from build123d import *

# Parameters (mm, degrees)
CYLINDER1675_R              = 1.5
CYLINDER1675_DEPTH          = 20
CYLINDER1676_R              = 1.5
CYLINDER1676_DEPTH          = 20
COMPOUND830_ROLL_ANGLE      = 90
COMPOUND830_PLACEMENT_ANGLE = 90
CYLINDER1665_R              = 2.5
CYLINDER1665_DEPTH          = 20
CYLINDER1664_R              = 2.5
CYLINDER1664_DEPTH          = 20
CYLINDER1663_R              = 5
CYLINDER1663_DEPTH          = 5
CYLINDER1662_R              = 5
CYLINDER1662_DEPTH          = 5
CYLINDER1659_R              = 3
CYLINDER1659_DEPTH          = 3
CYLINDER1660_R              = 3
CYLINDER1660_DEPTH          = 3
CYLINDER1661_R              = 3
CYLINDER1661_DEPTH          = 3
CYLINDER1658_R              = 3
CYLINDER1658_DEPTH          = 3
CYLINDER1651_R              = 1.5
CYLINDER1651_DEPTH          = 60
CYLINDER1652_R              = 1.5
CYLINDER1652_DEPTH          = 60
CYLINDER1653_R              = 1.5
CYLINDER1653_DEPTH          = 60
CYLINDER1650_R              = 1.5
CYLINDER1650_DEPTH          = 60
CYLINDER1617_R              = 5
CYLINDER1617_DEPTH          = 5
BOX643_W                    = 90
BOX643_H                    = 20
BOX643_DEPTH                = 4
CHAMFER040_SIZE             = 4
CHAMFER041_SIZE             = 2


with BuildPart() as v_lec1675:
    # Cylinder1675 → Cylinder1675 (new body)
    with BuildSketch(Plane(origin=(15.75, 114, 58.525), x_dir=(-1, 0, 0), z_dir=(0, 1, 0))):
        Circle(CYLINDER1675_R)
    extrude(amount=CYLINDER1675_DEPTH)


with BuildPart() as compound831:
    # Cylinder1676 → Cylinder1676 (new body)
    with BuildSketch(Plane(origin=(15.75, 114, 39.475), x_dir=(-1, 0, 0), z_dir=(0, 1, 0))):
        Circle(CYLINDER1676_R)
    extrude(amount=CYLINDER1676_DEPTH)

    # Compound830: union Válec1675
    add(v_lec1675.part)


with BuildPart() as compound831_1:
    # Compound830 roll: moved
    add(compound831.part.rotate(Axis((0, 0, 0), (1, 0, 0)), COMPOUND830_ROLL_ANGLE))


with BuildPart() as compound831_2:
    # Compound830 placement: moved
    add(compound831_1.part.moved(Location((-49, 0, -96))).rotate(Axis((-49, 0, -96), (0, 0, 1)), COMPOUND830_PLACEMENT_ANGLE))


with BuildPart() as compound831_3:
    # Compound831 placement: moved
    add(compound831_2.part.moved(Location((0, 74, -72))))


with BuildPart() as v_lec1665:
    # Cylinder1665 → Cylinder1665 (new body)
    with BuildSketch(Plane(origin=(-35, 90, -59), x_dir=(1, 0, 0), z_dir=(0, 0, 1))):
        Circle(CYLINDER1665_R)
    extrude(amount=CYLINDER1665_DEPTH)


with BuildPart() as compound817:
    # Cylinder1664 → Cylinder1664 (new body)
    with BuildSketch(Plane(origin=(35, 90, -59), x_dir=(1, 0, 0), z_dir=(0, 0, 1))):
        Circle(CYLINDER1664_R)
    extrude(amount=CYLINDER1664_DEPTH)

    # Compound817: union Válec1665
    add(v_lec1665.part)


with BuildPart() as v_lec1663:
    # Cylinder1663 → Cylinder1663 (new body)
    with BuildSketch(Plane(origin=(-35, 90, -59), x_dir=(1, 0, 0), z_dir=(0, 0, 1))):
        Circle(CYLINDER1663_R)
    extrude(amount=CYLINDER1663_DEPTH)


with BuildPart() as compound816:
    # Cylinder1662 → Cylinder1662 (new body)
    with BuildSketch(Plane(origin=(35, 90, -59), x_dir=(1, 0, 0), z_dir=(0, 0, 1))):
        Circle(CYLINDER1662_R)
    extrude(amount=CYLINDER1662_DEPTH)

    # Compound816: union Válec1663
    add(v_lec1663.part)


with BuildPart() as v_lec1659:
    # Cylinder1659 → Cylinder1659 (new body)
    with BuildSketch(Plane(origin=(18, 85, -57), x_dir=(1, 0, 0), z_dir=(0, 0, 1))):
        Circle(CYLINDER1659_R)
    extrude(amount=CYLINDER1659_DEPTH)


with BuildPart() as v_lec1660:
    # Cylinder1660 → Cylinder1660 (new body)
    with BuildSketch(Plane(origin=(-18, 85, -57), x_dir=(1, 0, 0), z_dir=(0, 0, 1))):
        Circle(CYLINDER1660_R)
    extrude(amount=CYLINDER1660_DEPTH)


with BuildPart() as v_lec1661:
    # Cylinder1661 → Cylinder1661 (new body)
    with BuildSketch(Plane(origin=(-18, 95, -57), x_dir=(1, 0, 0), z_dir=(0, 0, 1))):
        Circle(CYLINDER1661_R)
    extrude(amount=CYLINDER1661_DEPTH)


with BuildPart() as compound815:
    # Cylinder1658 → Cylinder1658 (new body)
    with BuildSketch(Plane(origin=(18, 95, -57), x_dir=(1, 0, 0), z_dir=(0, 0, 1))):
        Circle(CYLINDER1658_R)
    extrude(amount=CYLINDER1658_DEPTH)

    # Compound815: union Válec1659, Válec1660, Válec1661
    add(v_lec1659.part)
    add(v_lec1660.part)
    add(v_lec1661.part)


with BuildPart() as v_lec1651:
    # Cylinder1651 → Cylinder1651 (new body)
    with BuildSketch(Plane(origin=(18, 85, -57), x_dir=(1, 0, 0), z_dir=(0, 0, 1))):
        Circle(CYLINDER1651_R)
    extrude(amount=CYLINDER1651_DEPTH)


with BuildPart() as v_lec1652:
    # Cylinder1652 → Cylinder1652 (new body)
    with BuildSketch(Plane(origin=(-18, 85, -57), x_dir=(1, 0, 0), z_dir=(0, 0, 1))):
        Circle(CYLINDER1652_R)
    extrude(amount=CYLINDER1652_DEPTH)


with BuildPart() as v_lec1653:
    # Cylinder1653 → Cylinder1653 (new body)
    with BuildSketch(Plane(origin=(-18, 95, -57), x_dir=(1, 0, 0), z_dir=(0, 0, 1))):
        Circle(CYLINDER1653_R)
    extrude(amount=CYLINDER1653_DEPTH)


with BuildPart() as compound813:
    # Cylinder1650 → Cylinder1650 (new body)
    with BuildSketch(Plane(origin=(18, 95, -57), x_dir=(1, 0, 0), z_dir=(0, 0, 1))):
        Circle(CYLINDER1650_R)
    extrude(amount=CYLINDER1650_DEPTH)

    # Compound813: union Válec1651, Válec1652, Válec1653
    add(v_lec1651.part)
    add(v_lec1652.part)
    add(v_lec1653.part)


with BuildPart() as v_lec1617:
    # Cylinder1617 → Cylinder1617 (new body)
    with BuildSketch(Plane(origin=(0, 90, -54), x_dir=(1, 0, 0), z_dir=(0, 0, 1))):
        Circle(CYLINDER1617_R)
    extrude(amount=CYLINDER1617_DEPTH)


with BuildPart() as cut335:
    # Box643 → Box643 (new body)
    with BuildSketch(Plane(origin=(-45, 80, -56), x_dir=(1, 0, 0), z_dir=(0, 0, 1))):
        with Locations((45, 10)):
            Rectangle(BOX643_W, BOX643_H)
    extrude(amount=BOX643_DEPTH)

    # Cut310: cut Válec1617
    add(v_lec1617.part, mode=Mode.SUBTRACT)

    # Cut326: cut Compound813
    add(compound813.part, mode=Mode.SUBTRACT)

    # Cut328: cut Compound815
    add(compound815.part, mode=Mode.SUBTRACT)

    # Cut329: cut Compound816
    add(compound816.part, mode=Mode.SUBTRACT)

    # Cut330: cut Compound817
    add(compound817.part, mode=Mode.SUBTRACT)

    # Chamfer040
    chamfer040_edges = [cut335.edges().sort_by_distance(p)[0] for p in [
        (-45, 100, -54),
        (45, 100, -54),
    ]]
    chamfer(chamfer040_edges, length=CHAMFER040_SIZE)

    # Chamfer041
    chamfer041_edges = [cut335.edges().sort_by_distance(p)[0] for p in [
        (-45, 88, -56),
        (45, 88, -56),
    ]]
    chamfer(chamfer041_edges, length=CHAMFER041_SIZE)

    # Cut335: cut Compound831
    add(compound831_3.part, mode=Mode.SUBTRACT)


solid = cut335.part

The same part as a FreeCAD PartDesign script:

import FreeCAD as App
import Part
import Sketcher


def edges_at(feature, points):
    """Names of the edges that pass closest to the given points."""
    edges = feature.Shape.Edges
    near = lambda p: min(range(len(edges)), key=lambda i: edges[i].distToShape(Part.Vertex(*p))[0])
    return sorted({f"Edge{near(p) + 1}" for p in points})

doc = App.newDocument("Part")
params = doc.addObject("Spreadsheet::Sheet", "Params")
for row, (alias, value) in enumerate([
    ("sketch1_diameter", "3 mm"),
    ("pad1_length", "20 mm"),
    ("sketch2_diameter", "3 mm"),
    ("pad2_length", "20 mm"),
    ("sketch3_diameter", "5 mm"),
    ("pad3_length", "20 mm"),
    ("sketch4_diameter", "5 mm"),
    ("pad4_length", "20 mm"),
    ("sketch5_diameter", "10 mm"),
    ("pad5_length", "5 mm"),
    ("sketch6_diameter", "10 mm"),
    ("pad6_length", "5 mm"),
    ("sketch7_diameter", "6 mm"),
    ("pad7_length", "3 mm"),
    ("sketch8_diameter", "6 mm"),
    ("pad8_length", "3 mm"),
    ("sketch9_diameter", "6 mm"),
    ("pad9_length", "3 mm"),
    ("sketch10_diameter", "6 mm"),
    ("pad10_length", "3 mm"),
    ("sketch11_diameter", "3 mm"),
    ("pad11_length", "60 mm"),
    ("sketch12_diameter", "3 mm"),
    ("pad12_length", "60 mm"),
    ("sketch13_diameter", "3 mm"),
    ("pad13_length", "60 mm"),
    ("sketch14_diameter", "3 mm"),
    ("pad14_length", "60 mm"),
    ("sketch15_diameter", "10 mm"),
    ("pad15_length", "5 mm"),
    ("sketch16_width", "90 mm"),
    ("sketch16_height", "20 mm"),
    ("pad16_length", "4 mm"),
    ("chamfer_size", "4 mm"),
    ("chamfer2_size", "2 mm"),
], start=1):
    params.set(f"A{row}", alias)
    params.set(f"B{row}", "=" + value)
    params.setAlias(f"B{row}", alias)

body = doc.addObject("PartDesign::Body", "Body")

# Sketch on XZ plane
sketch1 = body.newObject("Sketcher::SketchObject", "Sketch")
sketch1.AttachmentSupport = (doc.getObject("XZ_Plane"), [""])
sketch1.MapMode = "FlatFace"
sketch1.AttachmentOffset = App.Placement(App.Vector(0, 0, -114), App.Rotation())
sketch1.addGeometry(Part.Circle(App.Vector(15.8, 58.5, 0), App.Vector(0, 0, 1), 1.5), False)
sketch1.addConstraint([
    Sketcher.Constraint("Diameter", 0, 3.0),
    Sketcher.Constraint("DistanceX", -1, 1, 0, 3, 15.75),
    Sketcher.Constraint("DistanceY", -1, 1, 0, 3, 58.525),
])
sketch1.setExpression("Constraints[0]", "Params.sketch1_diameter")
pad1 = body.newObject("PartDesign::Pad", "Pad")
pad1.Profile = sketch1
pad1.setExpression("Length", "Params.pad1_length")
pad1.Reversed = True
body2 = doc.addObject("PartDesign::Body", "Body001")
body2.AllowCompound = True

# Sketch on XZ plane
sketch2 = body2.newObject("Sketcher::SketchObject", "Sketch001")
sketch2.AttachmentSupport = (doc.getObject("XZ_Plane001"), [""])
sketch2.MapMode = "FlatFace"
sketch2.AttachmentOffset = App.Placement(App.Vector(0, 0, -114), App.Rotation())
sketch2.addGeometry(Part.Circle(App.Vector(15.8, 39.5, 0), App.Vector(0, 0, 1), 1.5), False)
sketch2.addConstraint([
    Sketcher.Constraint("Diameter", 0, 3.0),
    Sketcher.Constraint("DistanceX", -1, 1, 0, 3, 15.75),
    Sketcher.Constraint("DistanceY", -1, 1, 0, 3, 39.475),
])
sketch2.setExpression("Constraints[0]", "Params.sketch2_diameter")
pad2 = body2.newObject("PartDesign::Pad", "Pad001")
pad2.Profile = sketch2
pad2.setExpression("Length", "Params.pad2_length")
pad2.Reversed = True
doc.recompute()

boolean = body2.newObject("PartDesign::Boolean", "Boolean")
boolean.Type = "Fuse"
boolean.addObjects([body])
body3 = doc.addObject("PartDesign::Body", "Body002")
body3.AllowCompound = True
doc.recompute()

body2.Placement = App.Placement(App.Vector(0, 0, 0), App.Rotation(App.Vector(1, 0, 0), 90))
boolean2 = body3.newObject("PartDesign::Boolean", "Boolean001")
boolean2.Type = "Fuse"
boolean2.addObjects([body2])
body4 = doc.addObject("PartDesign::Body", "Body003")
body4.AllowCompound = True
doc.recompute()

body3.Placement = App.Placement(App.Vector(-49, 0, -96), App.Rotation(App.Vector(0, 0, 1), 90))
boolean3 = body4.newObject("PartDesign::Boolean", "Boolean002")
boolean3.Type = "Fuse"
boolean3.addObjects([body3])
body5 = doc.addObject("PartDesign::Body", "Body004")
body5.AllowCompound = True
doc.recompute()

body4.Placement = App.Placement(App.Vector(0, 74, -72), App.Rotation(App.Vector(0, 0, 1), 0))
boolean4 = body5.newObject("PartDesign::Boolean", "Boolean003")
boolean4.Type = "Fuse"
boolean4.addObjects([body4])
body6 = doc.addObject("PartDesign::Body", "Body005")

# Sketch on XY plane
sketch3 = body6.newObject("Sketcher::SketchObject", "Sketch002")
sketch3.AttachmentSupport = (doc.getObject("XY_Plane005"), [""])
sketch3.MapMode = "FlatFace"
sketch3.AttachmentOffset = App.Placement(App.Vector(0, 0, -59), App.Rotation())
sketch3.addGeometry(Part.Circle(App.Vector(-35, 90, 0), App.Vector(0, 0, 1), 2.5), False)
sketch3.addConstraint([
    Sketcher.Constraint("Diameter", 0, 5.0),
    Sketcher.Constraint("DistanceX", 0, 3, -1, 1, 35.0),
    Sketcher.Constraint("DistanceY", -1, 1, 0, 3, 90.0),
])
sketch3.setExpression("Constraints[0]", "Params.sketch3_diameter")
pad3 = body6.newObject("PartDesign::Pad", "Pad002")
pad3.Profile = sketch3
pad3.setExpression("Length", "Params.pad3_length")
body7 = doc.addObject("PartDesign::Body", "Body006")
body7.AllowCompound = True

# Sketch on XY plane
sketch4 = body7.newObject("Sketcher::SketchObject", "Sketch003")
sketch4.AttachmentSupport = (doc.getObject("XY_Plane006"), [""])
sketch4.MapMode = "FlatFace"
sketch4.AttachmentOffset = App.Placement(App.Vector(0, 0, -59), App.Rotation())
sketch4.addGeometry(Part.Circle(App.Vector(35, 90, 0), App.Vector(0, 0, 1), 2.5), False)
sketch4.addConstraint([
    Sketcher.Constraint("Diameter", 0, 5.0),
    Sketcher.Constraint("DistanceX", -1, 1, 0, 3, 35.0),
    Sketcher.Constraint("DistanceY", -1, 1, 0, 3, 90.0),
])
sketch4.setExpression("Constraints[0]", "Params.sketch4_diameter")
pad4 = body7.newObject("PartDesign::Pad", "Pad003")
pad4.Profile = sketch4
pad4.setExpression("Length", "Params.pad4_length")
doc.recompute()

boolean5 = body7.newObject("PartDesign::Boolean", "Boolean004")
boolean5.Type = "Fuse"
boolean5.addObjects([body6])
body8 = doc.addObject("PartDesign::Body", "Body007")

# Sketch on XY plane
sketch5 = body8.newObject("Sketcher::SketchObject", "Sketch004")
sketch5.AttachmentSupport = (doc.getObject("XY_Plane007"), [""])
sketch5.MapMode = "FlatFace"
sketch5.AttachmentOffset = App.Placement(App.Vector(0, 0, -59), App.Rotation())
sketch5.addGeometry(Part.Circle(App.Vector(-35, 90, 0), App.Vector(0, 0, 1), 5), False)
sketch5.addConstraint([
    Sketcher.Constraint("Diameter", 0, 10.0),
    Sketcher.Constraint("DistanceX", 0, 3, -1, 1, 35.0),
    Sketcher.Constraint("DistanceY", -1, 1, 0, 3, 90.0),
])
sketch5.setExpression("Constraints[0]", "Params.sketch5_diameter")
pad5 = body8.newObject("PartDesign::Pad", "Pad004")
pad5.Profile = sketch5
pad5.setExpression("Length", "Params.pad5_length")
body9 = doc.addObject("PartDesign::Body", "Body008")
body9.AllowCompound = True

# Sketch on XY plane
sketch6 = body9.newObject("Sketcher::SketchObject", "Sketch005")
sketch6.AttachmentSupport = (doc.getObject("XY_Plane008"), [""])
sketch6.MapMode = "FlatFace"
sketch6.AttachmentOffset = App.Placement(App.Vector(0, 0, -59), App.Rotation())
sketch6.addGeometry(Part.Circle(App.Vector(35, 90, 0), App.Vector(0, 0, 1), 5), False)
sketch6.addConstraint([
    Sketcher.Constraint("Diameter", 0, 10.0),
    Sketcher.Constraint("DistanceX", -1, 1, 0, 3, 35.0),
    Sketcher.Constraint("DistanceY", -1, 1, 0, 3, 90.0),
])
sketch6.setExpression("Constraints[0]", "Params.sketch6_diameter")
pad6 = body9.newObject("PartDesign::Pad", "Pad005")
pad6.Profile = sketch6
pad6.setExpression("Length", "Params.pad6_length")
doc.recompute()

boolean6 = body9.newObject("PartDesign::Boolean", "Boolean005")
boolean6.Type = "Fuse"
boolean6.addObjects([body8])
body10 = doc.addObject("PartDesign::Body", "Body009")

# Sketch on XY plane
sketch7 = body10.newObject("Sketcher::SketchObject", "Sketch006")
sketch7.AttachmentSupport = (doc.getObject("XY_Plane009"), [""])
sketch7.MapMode = "FlatFace"
sketch7.AttachmentOffset = App.Placement(App.Vector(0, 0, -57), App.Rotation())
sketch7.addGeometry(Part.Circle(App.Vector(18, 85, 0), App.Vector(0, 0, 1), 3), False)
sketch7.addConstraint([
    Sketcher.Constraint("Diameter", 0, 6.0),
    Sketcher.Constraint("DistanceX", -1, 1, 0, 3, 18.0),
    Sketcher.Constraint("DistanceY", -1, 1, 0, 3, 85.0),
])
sketch7.setExpression("Constraints[0]", "Params.sketch7_diameter")
pad7 = body10.newObject("PartDesign::Pad", "Pad006")
pad7.Profile = sketch7
pad7.setExpression("Length", "Params.pad7_length")
body11 = doc.addObject("PartDesign::Body", "Body010")

# Sketch on XY plane
sketch8 = body11.newObject("Sketcher::SketchObject", "Sketch007")
sketch8.AttachmentSupport = (doc.getObject("XY_Plane010"), [""])
sketch8.MapMode = "FlatFace"
sketch8.AttachmentOffset = App.Placement(App.Vector(0, 0, -57), App.Rotation())
sketch8.addGeometry(Part.Circle(App.Vector(-18, 85, 0), App.Vector(0, 0, 1), 3), False)
sketch8.addConstraint([
    Sketcher.Constraint("Diameter", 0, 6.0),
    Sketcher.Constraint("DistanceX", 0, 3, -1, 1, 18.0),
    Sketcher.Constraint("DistanceY", -1, 1, 0, 3, 85.0),
])
sketch8.setExpression("Constraints[0]", "Params.sketch8_diameter")
pad8 = body11.newObject("PartDesign::Pad", "Pad007")
pad8.Profile = sketch8
pad8.setExpression("Length", "Params.pad8_length")
body12 = doc.addObject("PartDesign::Body", "Body011")

# Sketch on XY plane
sketch9 = body12.newObject("Sketcher::SketchObject", "Sketch008")
sketch9.AttachmentSupport = (doc.getObject("XY_Plane011"), [""])
sketch9.MapMode = "FlatFace"
sketch9.AttachmentOffset = App.Placement(App.Vector(0, 0, -57), App.Rotation())
sketch9.addGeometry(Part.Circle(App.Vector(-18, 95, 0), App.Vector(0, 0, 1), 3), False)
sketch9.addConstraint([
    Sketcher.Constraint("Diameter", 0, 6.0),
    Sketcher.Constraint("DistanceX", 0, 3, -1, 1, 18.0),
    Sketcher.Constraint("DistanceY", -1, 1, 0, 3, 95.0),
])
sketch9.setExpression("Constraints[0]", "Params.sketch9_diameter")
pad9 = body12.newObject("PartDesign::Pad", "Pad008")
pad9.Profile = sketch9
pad9.setExpression("Length", "Params.pad9_length")
body13 = doc.addObject("PartDesign::Body", "Body012")
body13.AllowCompound = True

# Sketch on XY plane
sketch10 = body13.newObject("Sketcher::SketchObject", "Sketch009")
sketch10.AttachmentSupport = (doc.getObject("XY_Plane012"), [""])
sketch10.MapMode = "FlatFace"
sketch10.AttachmentOffset = App.Placement(App.Vector(0, 0, -57), App.Rotation())
sketch10.addGeometry(Part.Circle(App.Vector(18, 95, 0), App.Vector(0, 0, 1), 3), False)
sketch10.addConstraint([
    Sketcher.Constraint("Diameter", 0, 6.0),
    Sketcher.Constraint("DistanceX", -1, 1, 0, 3, 18.0),
    Sketcher.Constraint("DistanceY", -1, 1, 0, 3, 95.0),
])
sketch10.setExpression("Constraints[0]", "Params.sketch10_diameter")
pad10 = body13.newObject("PartDesign::Pad", "Pad009")
pad10.Profile = sketch10
pad10.setExpression("Length", "Params.pad10_length")
doc.recompute()

boolean7 = body13.newObject("PartDesign::Boolean", "Boolean006")
boolean7.Type = "Fuse"
boolean7.addObjects([body10])
doc.recompute()

boolean8 = body13.newObject("PartDesign::Boolean", "Boolean007")
boolean8.Type = "Fuse"
boolean8.addObjects([body11])
doc.recompute()

boolean9 = body13.newObject("PartDesign::Boolean", "Boolean008")
boolean9.Type = "Fuse"
boolean9.addObjects([body12])
body14 = doc.addObject("PartDesign::Body", "Body013")

# Sketch on XY plane
sketch11 = body14.newObject("Sketcher::SketchObject", "Sketch010")
sketch11.AttachmentSupport = (doc.getObject("XY_Plane013"), [""])
sketch11.MapMode = "FlatFace"
sketch11.AttachmentOffset = App.Placement(App.Vector(0, 0, -57), App.Rotation())
sketch11.addGeometry(Part.Circle(App.Vector(18, 85, 0), App.Vector(0, 0, 1), 1.5), False)
sketch11.addConstraint([
    Sketcher.Constraint("Diameter", 0, 3.0),
    Sketcher.Constraint("DistanceX", -1, 1, 0, 3, 18.0),
    Sketcher.Constraint("DistanceY", -1, 1, 0, 3, 85.0),
])
sketch11.setExpression("Constraints[0]", "Params.sketch11_diameter")
pad11 = body14.newObject("PartDesign::Pad", "Pad010")
pad11.Profile = sketch11
pad11.setExpression("Length", "Params.pad11_length")
body15 = doc.addObject("PartDesign::Body", "Body014")

# Sketch on XY plane
sketch12 = body15.newObject("Sketcher::SketchObject", "Sketch011")
sketch12.AttachmentSupport = (doc.getObject("XY_Plane014"), [""])
sketch12.MapMode = "FlatFace"
sketch12.AttachmentOffset = App.Placement(App.Vector(0, 0, -57), App.Rotation())
sketch12.addGeometry(Part.Circle(App.Vector(-18, 85, 0), App.Vector(0, 0, 1), 1.5), False)
sketch12.addConstraint([
    Sketcher.Constraint("Diameter", 0, 3.0),
    Sketcher.Constraint("DistanceX", 0, 3, -1, 1, 18.0),
    Sketcher.Constraint("DistanceY", -1, 1, 0, 3, 85.0),
])
sketch12.setExpression("Constraints[0]", "Params.sketch12_diameter")
pad12 = body15.newObject("PartDesign::Pad", "Pad011")
pad12.Profile = sketch12
pad12.setExpression("Length", "Params.pad12_length")
body16 = doc.addObject("PartDesign::Body", "Body015")

# Sketch on XY plane
sketch13 = body16.newObject("Sketcher::SketchObject", "Sketch012")
sketch13.AttachmentSupport = (doc.getObject("XY_Plane015"), [""])
sketch13.MapMode = "FlatFace"
sketch13.AttachmentOffset = App.Placement(App.Vector(0, 0, -57), App.Rotation())
sketch13.addGeometry(Part.Circle(App.Vector(-18, 95, 0), App.Vector(0, 0, 1), 1.5), False)
sketch13.addConstraint([
    Sketcher.Constraint("Diameter", 0, 3.0),
    Sketcher.Constraint("DistanceX", 0, 3, -1, 1, 18.0),
    Sketcher.Constraint("DistanceY", -1, 1, 0, 3, 95.0),
])
sketch13.setExpression("Constraints[0]", "Params.sketch13_diameter")
pad13 = body16.newObject("PartDesign::Pad", "Pad012")
pad13.Profile = sketch13
pad13.setExpression("Length", "Params.pad13_length")
body17 = doc.addObject("PartDesign::Body", "Body016")
body17.AllowCompound = True

# Sketch on XY plane
sketch14 = body17.newObject("Sketcher::SketchObject", "Sketch013")
sketch14.AttachmentSupport = (doc.getObject("XY_Plane016"), [""])
sketch14.MapMode = "FlatFace"
sketch14.AttachmentOffset = App.Placement(App.Vector(0, 0, -57), App.Rotation())
sketch14.addGeometry(Part.Circle(App.Vector(18, 95, 0), App.Vector(0, 0, 1), 1.5), False)
sketch14.addConstraint([
    Sketcher.Constraint("Diameter", 0, 3.0),
    Sketcher.Constraint("DistanceX", -1, 1, 0, 3, 18.0),
    Sketcher.Constraint("DistanceY", -1, 1, 0, 3, 95.0),
])
sketch14.setExpression("Constraints[0]", "Params.sketch14_diameter")
pad14 = body17.newObject("PartDesign::Pad", "Pad013")
pad14.Profile = sketch14
pad14.setExpression("Length", "Params.pad14_length")
doc.recompute()

boolean10 = body17.newObject("PartDesign::Boolean", "Boolean009")
boolean10.Type = "Fuse"
boolean10.addObjects([body14])
doc.recompute()

boolean11 = body17.newObject("PartDesign::Boolean", "Boolean010")
boolean11.Type = "Fuse"
boolean11.addObjects([body15])
doc.recompute()

boolean12 = body17.newObject("PartDesign::Boolean", "Boolean011")
boolean12.Type = "Fuse"
boolean12.addObjects([body16])
body18 = doc.addObject("PartDesign::Body", "Body017")

# Sketch on XY plane
sketch15 = body18.newObject("Sketcher::SketchObject", "Sketch014")
sketch15.AttachmentSupport = (doc.getObject("XY_Plane017"), [""])
sketch15.MapMode = "FlatFace"
sketch15.AttachmentOffset = App.Placement(App.Vector(0, 0, -54), App.Rotation())
sketch15.addGeometry(Part.Circle(App.Vector(0, 90, 0), App.Vector(0, 0, 1), 5), False)
sketch15.addConstraint([
    Sketcher.Constraint("PointOnObject", 0, 3, -2),
    Sketcher.Constraint("Diameter", 0, 10.0),
    Sketcher.Constraint("DistanceY", -1, 1, 0, 3, 90.0),
])
sketch15.setExpression("Constraints[1]", "Params.sketch15_diameter")
pad15 = body18.newObject("PartDesign::Pad", "Pad014")
pad15.Profile = sketch15
pad15.setExpression("Length", "Params.pad15_length")
body19 = doc.addObject("PartDesign::Body", "Body018")

# Sketch on XY plane
sketch16 = body19.newObject("Sketcher::SketchObject", "Sketch015")
sketch16.AttachmentSupport = (doc.getObject("XY_Plane018"), [""])
sketch16.MapMode = "FlatFace"
sketch16.AttachmentOffset = App.Placement(App.Vector(0, 0, -56), App.Rotation())
sketch16.addGeometry([
    Part.LineSegment(App.Vector(-45, 100, 0), App.Vector(-45, 80, 0)),
    Part.LineSegment(App.Vector(-45, 80, 0), App.Vector(45, 80, 0)),
    Part.LineSegment(App.Vector(45, 80, 0), App.Vector(45, 100, 0)),
    Part.LineSegment(App.Vector(45, 100, 0), App.Vector(-45, 100, 0)),
], False)
sketch16.addConstraint([
    Sketcher.Constraint("Coincident", 0, 2, 1, 1),
    Sketcher.Constraint("Coincident", 1, 2, 2, 1),
    Sketcher.Constraint("Coincident", 2, 2, 3, 1),
    Sketcher.Constraint("Coincident", 3, 2, 0, 1),
    Sketcher.Constraint("Vertical", 0),
    Sketcher.Constraint("Horizontal", 1),
    Sketcher.Constraint("Vertical", 2),
    Sketcher.Constraint("Horizontal", 3),
    Sketcher.Constraint("DistanceX", 1, 1, 1, 2, 90.0),
    Sketcher.Constraint("DistanceY", 0, 2, 0, 1, 20.0),
    Sketcher.Constraint("DistanceX", 0, 2, -1, 1, 45.0),
    Sketcher.Constraint("DistanceY", -1, 1, 0, 2, 80.0),
])
sketch16.setExpression("Constraints[8]", "Params.sketch16_width")
sketch16.setExpression("Constraints[9]", "Params.sketch16_height")
pad16 = body19.newObject("PartDesign::Pad", "Pad015")
pad16.Profile = sketch16
pad16.setExpression("Length", "Params.pad16_length")
doc.recompute()

boolean13 = body19.newObject("PartDesign::Boolean", "Boolean012")
boolean13.Type = "Cut"
boolean13.addObjects([body18])
doc.recompute()

boolean14 = body19.newObject("PartDesign::Boolean", "Boolean013")
boolean14.Type = "Cut"
boolean14.addObjects([body17])
doc.recompute()

boolean15 = body19.newObject("PartDesign::Boolean", "Boolean014")
boolean15.Type = "Cut"
boolean15.addObjects([body13])
doc.recompute()

boolean16 = body19.newObject("PartDesign::Boolean", "Boolean015")
boolean16.Type = "Cut"
boolean16.addObjects([body9])
doc.recompute()

boolean17 = body19.newObject("PartDesign::Boolean", "Boolean016")
boolean17.Type = "Cut"
boolean17.addObjects([body7])
doc.recompute()

chamfer = body19.newObject("PartDesign::Chamfer", "Chamfer")
chamfer.Base = (boolean17, edges_at(boolean17, [(-45, 100, -54), (45, 100, -54)]))
chamfer.setExpression("Size", "Params.chamfer_size")
doc.recompute()

chamfer2 = body19.newObject("PartDesign::Chamfer", "Chamfer001")
chamfer2.Base = (chamfer, edges_at(chamfer, [(-45, 88, -56), (45, 88, -56)]))
chamfer2.setExpression("Size", "Params.chamfer2_size")
doc.recompute()

boolean18 = body19.newObject("PartDesign::Boolean", "Boolean017")
boolean18.Type = "Cut"
boolean18.addObjects([body5])

doc.recompute()
